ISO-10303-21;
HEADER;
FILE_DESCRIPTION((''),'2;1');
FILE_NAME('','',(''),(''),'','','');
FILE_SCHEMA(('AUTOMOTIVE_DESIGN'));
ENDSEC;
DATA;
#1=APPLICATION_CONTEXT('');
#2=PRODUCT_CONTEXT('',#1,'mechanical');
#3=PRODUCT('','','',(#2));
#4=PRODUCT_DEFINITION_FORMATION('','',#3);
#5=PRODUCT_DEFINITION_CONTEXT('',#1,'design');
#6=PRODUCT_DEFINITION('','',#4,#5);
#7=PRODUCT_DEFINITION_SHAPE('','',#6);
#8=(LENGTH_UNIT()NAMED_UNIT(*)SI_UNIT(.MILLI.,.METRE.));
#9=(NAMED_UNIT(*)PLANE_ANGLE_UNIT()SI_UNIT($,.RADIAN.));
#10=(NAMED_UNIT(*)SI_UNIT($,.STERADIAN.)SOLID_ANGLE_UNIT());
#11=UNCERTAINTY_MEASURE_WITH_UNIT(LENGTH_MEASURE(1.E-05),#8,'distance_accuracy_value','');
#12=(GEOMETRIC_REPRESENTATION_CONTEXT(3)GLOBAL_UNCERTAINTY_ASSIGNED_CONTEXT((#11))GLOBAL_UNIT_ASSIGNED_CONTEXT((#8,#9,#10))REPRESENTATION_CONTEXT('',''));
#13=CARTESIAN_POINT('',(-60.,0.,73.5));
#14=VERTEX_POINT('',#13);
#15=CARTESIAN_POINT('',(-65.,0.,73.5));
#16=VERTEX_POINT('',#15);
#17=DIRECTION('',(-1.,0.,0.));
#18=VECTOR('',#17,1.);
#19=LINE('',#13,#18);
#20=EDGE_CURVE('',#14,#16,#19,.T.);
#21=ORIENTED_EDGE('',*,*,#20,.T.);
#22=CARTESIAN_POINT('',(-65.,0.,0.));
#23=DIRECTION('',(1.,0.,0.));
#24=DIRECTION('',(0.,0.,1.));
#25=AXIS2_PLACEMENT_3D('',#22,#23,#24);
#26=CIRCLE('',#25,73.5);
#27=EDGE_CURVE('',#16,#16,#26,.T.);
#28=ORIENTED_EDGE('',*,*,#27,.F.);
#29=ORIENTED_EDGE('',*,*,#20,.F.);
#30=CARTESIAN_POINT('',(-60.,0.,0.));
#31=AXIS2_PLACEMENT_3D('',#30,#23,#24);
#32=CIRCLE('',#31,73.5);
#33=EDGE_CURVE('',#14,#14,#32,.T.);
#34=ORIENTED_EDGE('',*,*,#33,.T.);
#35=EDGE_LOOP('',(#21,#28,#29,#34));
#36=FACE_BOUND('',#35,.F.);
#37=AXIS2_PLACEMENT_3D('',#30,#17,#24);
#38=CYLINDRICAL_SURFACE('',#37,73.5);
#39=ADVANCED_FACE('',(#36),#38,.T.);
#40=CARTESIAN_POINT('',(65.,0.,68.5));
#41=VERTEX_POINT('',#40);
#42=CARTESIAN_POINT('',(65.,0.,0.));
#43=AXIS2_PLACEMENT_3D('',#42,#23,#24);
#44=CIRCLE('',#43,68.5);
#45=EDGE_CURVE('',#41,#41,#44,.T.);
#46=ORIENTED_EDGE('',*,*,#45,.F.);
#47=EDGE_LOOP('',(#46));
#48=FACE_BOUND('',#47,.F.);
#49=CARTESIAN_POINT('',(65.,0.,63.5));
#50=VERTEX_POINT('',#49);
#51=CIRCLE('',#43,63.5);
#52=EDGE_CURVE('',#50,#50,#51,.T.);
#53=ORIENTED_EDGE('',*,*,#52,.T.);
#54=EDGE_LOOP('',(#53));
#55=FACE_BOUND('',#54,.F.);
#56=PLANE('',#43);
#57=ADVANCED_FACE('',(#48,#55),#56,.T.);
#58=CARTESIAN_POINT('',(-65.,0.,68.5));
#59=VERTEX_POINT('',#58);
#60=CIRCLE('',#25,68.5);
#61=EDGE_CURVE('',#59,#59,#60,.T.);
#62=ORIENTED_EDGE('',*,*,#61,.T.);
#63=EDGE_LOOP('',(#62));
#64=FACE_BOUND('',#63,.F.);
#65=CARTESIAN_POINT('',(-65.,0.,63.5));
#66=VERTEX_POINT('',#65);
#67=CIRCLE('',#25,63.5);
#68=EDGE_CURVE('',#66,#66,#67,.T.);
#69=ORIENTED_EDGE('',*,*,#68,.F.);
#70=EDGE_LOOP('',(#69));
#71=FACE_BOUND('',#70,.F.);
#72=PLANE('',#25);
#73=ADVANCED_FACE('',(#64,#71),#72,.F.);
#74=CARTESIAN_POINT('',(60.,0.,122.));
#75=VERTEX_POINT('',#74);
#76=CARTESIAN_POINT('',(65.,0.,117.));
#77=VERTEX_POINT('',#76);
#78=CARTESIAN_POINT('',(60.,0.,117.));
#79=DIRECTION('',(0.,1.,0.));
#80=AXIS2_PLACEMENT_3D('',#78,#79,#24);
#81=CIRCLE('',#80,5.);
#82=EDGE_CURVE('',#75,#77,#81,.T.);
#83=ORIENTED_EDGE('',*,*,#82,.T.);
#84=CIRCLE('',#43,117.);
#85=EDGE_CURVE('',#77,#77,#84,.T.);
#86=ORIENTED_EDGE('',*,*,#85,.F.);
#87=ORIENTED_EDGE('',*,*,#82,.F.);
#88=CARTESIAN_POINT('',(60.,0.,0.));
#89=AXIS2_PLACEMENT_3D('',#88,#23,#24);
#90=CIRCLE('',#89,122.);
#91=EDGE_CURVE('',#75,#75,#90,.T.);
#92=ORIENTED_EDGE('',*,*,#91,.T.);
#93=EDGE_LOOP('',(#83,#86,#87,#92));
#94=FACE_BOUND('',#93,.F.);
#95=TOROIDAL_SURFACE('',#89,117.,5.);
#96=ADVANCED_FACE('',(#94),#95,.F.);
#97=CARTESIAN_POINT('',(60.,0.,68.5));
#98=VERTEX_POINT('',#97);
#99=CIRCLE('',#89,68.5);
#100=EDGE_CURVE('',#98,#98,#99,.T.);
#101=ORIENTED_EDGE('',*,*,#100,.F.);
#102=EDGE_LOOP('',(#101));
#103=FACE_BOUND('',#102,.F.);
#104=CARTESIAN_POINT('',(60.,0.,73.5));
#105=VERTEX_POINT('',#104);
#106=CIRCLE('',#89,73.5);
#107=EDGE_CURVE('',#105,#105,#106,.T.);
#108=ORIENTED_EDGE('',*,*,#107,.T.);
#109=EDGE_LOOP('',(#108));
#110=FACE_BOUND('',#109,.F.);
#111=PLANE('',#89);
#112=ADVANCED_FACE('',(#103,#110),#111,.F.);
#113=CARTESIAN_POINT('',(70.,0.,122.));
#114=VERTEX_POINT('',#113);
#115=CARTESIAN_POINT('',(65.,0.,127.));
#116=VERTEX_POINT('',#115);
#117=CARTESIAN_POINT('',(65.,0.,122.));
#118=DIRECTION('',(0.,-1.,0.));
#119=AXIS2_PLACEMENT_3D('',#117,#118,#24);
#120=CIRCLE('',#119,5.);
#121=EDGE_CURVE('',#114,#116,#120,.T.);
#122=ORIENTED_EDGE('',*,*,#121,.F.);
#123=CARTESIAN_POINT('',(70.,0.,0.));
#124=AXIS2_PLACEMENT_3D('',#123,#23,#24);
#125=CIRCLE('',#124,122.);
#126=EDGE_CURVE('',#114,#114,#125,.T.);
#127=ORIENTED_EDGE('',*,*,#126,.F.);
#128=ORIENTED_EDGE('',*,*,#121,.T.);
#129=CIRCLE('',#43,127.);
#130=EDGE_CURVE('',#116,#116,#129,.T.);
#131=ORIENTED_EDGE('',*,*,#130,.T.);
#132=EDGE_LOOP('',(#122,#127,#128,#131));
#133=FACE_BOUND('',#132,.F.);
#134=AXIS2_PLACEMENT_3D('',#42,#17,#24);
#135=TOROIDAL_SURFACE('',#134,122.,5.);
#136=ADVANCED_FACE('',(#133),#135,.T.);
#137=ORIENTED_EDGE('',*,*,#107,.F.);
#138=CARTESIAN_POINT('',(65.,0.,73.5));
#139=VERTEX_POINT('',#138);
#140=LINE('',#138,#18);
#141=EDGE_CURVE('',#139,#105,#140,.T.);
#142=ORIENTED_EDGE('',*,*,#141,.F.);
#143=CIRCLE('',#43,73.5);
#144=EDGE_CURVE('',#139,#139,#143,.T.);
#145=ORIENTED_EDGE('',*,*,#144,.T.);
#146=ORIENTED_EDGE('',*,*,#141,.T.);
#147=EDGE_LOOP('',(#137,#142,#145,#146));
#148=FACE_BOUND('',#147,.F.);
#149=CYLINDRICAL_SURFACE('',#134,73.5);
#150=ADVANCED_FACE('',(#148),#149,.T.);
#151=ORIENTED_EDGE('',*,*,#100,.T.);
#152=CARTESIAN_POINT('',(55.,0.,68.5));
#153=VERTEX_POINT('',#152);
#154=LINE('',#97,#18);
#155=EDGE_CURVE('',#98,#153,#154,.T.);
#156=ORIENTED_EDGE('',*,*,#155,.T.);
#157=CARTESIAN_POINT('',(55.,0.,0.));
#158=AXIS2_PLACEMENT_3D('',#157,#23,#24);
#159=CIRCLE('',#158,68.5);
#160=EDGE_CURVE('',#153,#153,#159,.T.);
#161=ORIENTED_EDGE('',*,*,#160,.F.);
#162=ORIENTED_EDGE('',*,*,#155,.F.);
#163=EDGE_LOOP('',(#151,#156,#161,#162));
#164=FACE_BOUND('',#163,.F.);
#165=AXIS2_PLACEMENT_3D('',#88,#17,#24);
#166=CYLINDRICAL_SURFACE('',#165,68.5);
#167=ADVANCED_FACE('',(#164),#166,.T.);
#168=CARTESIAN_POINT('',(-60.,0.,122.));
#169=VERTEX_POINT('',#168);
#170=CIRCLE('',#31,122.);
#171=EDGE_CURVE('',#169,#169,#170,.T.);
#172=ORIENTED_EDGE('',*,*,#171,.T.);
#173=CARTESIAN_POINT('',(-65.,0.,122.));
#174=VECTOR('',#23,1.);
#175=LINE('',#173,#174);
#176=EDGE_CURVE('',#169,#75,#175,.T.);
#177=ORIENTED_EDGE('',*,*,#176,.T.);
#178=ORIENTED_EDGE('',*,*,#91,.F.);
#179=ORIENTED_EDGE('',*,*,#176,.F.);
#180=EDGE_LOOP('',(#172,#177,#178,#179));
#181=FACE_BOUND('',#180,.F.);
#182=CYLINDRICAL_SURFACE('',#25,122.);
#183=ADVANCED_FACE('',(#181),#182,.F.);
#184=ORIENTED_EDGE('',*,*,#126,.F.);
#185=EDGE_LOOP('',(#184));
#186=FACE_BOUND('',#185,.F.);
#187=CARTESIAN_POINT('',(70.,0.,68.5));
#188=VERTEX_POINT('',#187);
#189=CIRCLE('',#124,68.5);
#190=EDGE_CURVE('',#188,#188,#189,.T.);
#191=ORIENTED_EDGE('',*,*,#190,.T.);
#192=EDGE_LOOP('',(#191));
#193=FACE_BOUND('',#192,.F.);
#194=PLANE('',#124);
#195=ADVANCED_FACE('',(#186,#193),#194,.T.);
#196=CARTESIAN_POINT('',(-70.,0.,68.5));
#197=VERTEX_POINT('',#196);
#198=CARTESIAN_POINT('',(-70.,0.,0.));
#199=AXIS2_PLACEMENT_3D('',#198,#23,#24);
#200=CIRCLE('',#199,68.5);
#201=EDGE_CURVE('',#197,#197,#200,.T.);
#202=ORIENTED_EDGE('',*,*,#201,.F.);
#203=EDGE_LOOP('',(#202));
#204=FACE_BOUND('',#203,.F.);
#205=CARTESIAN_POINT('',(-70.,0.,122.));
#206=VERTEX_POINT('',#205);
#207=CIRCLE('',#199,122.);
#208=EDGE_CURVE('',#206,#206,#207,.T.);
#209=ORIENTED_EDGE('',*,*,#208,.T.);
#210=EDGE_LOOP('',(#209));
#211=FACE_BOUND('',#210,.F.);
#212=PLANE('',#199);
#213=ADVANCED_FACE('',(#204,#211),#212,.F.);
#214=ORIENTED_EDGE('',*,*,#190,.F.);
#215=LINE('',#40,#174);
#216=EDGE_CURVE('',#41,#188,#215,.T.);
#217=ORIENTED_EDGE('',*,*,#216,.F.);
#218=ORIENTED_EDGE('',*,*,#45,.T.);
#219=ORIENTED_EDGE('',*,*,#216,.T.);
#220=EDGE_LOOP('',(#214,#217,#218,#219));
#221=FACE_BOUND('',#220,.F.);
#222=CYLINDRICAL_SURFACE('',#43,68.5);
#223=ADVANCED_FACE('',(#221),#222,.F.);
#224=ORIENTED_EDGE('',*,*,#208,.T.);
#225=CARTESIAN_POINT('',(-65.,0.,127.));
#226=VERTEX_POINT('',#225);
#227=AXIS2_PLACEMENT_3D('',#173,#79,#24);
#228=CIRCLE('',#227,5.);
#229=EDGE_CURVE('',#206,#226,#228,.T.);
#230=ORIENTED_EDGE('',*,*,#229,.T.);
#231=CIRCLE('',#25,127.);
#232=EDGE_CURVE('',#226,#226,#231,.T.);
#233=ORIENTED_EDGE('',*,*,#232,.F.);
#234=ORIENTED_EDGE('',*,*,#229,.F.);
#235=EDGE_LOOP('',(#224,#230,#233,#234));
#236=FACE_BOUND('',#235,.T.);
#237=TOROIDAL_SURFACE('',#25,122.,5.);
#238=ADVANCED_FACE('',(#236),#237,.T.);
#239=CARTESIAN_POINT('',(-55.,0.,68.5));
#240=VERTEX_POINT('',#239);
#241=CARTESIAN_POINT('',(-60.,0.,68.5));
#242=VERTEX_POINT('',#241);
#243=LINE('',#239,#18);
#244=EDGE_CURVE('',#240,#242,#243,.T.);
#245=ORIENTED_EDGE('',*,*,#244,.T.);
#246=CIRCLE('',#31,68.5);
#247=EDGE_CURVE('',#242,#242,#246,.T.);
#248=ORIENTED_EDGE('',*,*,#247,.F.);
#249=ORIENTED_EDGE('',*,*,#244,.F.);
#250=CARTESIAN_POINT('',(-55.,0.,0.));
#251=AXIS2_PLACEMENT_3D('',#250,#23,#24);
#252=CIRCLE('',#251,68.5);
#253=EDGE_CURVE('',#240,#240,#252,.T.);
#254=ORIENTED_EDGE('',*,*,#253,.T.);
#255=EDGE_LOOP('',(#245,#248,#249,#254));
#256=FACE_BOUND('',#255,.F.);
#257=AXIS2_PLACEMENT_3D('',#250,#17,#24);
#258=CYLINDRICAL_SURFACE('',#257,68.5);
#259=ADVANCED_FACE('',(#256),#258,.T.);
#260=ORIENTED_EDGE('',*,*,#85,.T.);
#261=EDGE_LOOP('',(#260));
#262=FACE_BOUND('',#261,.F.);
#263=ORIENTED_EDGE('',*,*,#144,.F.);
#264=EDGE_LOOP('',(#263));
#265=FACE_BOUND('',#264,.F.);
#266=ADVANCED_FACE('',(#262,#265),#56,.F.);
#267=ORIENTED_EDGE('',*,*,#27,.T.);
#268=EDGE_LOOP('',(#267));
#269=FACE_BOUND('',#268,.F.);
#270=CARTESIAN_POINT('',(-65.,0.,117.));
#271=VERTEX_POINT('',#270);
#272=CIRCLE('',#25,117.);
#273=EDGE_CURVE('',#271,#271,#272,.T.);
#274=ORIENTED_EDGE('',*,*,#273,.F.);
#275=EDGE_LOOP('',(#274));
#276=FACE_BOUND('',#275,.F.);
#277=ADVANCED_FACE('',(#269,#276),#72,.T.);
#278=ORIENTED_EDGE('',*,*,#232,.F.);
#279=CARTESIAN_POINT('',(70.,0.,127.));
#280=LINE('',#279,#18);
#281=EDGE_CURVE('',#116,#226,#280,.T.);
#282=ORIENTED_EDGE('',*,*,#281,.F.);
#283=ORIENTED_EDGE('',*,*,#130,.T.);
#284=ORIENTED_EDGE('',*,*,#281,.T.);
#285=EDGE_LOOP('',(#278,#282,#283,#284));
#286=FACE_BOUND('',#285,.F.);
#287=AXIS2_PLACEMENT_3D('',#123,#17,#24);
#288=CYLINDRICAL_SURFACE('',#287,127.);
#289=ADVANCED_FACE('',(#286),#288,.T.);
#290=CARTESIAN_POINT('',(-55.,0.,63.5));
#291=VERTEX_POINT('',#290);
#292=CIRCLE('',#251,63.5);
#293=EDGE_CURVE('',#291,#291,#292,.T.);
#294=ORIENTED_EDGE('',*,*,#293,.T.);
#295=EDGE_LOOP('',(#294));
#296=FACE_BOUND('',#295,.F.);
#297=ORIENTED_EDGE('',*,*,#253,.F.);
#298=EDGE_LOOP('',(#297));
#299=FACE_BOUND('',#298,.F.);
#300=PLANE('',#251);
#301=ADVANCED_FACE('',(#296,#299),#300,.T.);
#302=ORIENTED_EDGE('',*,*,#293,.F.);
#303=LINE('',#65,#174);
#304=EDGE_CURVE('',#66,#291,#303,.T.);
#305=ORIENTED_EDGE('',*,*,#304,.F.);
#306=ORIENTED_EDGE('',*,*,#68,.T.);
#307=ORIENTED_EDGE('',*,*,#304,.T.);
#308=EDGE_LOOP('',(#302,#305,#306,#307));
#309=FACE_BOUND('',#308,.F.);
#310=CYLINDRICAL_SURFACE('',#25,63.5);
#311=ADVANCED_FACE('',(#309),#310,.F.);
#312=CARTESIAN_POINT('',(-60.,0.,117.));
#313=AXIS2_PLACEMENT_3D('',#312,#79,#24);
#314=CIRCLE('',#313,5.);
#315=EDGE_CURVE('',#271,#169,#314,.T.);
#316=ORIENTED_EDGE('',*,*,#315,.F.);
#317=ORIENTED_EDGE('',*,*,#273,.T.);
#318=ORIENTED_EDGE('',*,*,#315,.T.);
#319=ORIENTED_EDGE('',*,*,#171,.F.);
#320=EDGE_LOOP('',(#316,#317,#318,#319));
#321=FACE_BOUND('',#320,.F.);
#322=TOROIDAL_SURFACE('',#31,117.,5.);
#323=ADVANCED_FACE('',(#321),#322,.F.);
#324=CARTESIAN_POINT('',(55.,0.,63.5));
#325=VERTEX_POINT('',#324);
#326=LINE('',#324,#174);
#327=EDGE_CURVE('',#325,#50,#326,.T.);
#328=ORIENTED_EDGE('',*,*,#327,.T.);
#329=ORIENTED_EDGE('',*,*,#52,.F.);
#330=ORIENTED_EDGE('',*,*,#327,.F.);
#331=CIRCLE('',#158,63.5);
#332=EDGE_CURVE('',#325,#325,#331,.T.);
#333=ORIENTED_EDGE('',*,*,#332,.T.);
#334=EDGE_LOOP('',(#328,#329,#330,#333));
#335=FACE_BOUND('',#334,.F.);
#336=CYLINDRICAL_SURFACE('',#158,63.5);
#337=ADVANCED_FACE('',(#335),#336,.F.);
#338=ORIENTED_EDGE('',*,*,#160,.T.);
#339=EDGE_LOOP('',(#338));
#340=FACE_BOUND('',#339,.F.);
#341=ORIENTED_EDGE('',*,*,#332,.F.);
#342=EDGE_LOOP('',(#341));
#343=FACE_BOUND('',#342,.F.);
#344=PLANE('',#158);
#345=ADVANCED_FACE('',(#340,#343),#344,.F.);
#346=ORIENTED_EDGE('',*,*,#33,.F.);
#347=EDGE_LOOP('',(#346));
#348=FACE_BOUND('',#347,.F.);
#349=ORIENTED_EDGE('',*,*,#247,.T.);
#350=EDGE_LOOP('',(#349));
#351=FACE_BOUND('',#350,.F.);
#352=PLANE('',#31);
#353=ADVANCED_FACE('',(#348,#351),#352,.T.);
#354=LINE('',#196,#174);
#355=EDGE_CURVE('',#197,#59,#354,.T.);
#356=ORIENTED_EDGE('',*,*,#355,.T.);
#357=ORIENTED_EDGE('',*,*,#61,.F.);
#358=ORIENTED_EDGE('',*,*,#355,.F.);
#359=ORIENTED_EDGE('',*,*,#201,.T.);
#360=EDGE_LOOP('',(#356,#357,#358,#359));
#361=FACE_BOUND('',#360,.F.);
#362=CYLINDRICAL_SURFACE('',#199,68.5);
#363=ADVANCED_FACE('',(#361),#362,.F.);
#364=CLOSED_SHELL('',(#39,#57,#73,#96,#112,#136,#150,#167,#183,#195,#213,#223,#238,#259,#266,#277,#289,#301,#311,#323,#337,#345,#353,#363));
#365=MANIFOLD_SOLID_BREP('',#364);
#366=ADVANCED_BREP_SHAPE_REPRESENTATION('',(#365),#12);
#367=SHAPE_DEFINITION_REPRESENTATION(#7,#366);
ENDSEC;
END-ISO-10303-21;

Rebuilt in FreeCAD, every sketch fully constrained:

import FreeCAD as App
import Part
import Sketcher

V = App.Vector


def edges_at(feature, points):
    """Names of the edges that pass closest to the given points."""
    edges = feature.Shape.Edges
    near = lambda p: min(range(len(edges)), key=lambda i: edges[i].distToShape(Part.Vertex(*p))[0])
    return sorted({f"Edge{near(p) + 1}" for p in points})


def add_polygon(sketch, points):
    """Adds a closed chain of lines whose ends are joined by coincident constraints."""
    first, n = sketch.GeometryCount, len(points)
    for a, b in zip(points, points[1:] + points[:1]):
        sketch.addGeometry(Part.LineSegment(App.Vector(*a, 0), App.Vector(*b, 0)), False)
    for i in range(n):
        sketch.addConstraint(Sketcher.Constraint("Coincident", first + i, 2, first + (i + 1) % n, 1))

doc = App.newDocument("Part")
params = doc.addObject("Spreadsheet::Sheet", "Params")
for row, (alias, value) in enumerate([
    ("sketch1_height", "58.5 mm"),
    ("sketch1_height2", "48.5 mm"),
    ("revolution_angle", "360 deg"),
    ("fillet_radius", "5 mm"),
], start=1):
    params.set(f"A{row}", alias)
    params.set(f"B{row}", "=" + value)
    params.setAlias(f"B{row}", alias)

body = doc.addObject("PartDesign::Body", "Body")

# Sketch on XZ plane
sketch1 = body.newObject("Sketcher::SketchObject", "Sketch")
sketch1.AttachmentSupport = (doc.getObject("XZ_Plane"), [""])
sketch1.MapMode = "FlatFace"
add_polygon(sketch1, [(70, 127), (-70, 127), (-70, 68), (-65, 68), (-65, 64), (-55, 64), (-55, 68), (-60, 68), (-60, 74), (-65, 74), (-65, 122), (65, 122), (65, 74), (60, 74), (60, 68), (55, 68), (55, 64), (65, 64), (65, 68), (70, 68)])  # lines 0-19
sketch1.addConstraint([
    Sketcher.Constraint("Horizontal", 0),
    Sketcher.Constraint("Vertical", 1),
    Sketcher.Constraint("Horizontal", 2),
    Sketcher.Constraint("Vertical", 3),
    Sketcher.Constraint("Horizontal", 4),
    Sketcher.Constraint("Vertical", 5),
    Sketcher.Constraint("Horizontal", 6),
    Sketcher.Constraint("Vertical", 7),
    Sketcher.Constraint("Horizontal", 8),
    Sketcher.Constraint("Vertical", 9),
    Sketcher.Constraint("Horizontal", 10),
    Sketcher.Constraint("Vertical", 11),
    Sketcher.Constraint("Horizontal", 12),
    Sketcher.Constraint("Vertical", 13),
    Sketcher.Constraint("Horizontal", 14),
    Sketcher.Constraint("Vertical", 15),
    Sketcher.Constraint("Horizontal", 16),
    Sketcher.Constraint("Vertical", 17),
    Sketcher.Constraint("Horizontal", 18),
    Sketcher.Constraint("Vertical", 19),
    Sketcher.Constraint("Symmetric", 8, 2, 11, 2, -2),
    Sketcher.Constraint("Symmetric", 6, 2, 13, 2, -2),
    Sketcher.Constraint("Symmetric", 4, 2, 15, 2, -2),
    Sketcher.Constraint("Symmetric", 2, 2, 17, 2, -2),
    Sketcher.Constraint("Horizontal", 2, 2, 5, 2),
    Sketcher.Constraint("Vertical", 3, 2, 8, 2),
    Sketcher.Constraint("Equal", 2, 6),
    Sketcher.Constraint("Equal", 6, 8),
    Sketcher.Constraint("Equal", 14, 18),
    Sketcher.Constraint("Equal", 18, 3),
    Sketcher.Constraint("Equal", 5, 7),
    Sketcher.Constraint("DistanceX", 2, 2, -1, 1, 65.0),
    Sketcher.Constraint("DistanceX", 4, 2, -1, 1, 55.0),
    Sketcher.Constraint("DistanceY", 1, 2, 1, 1, 58.5),
    Sketcher.Constraint("DistanceY", 9, 1, 9, 2, 48.5),
    Sketcher.Constraint("DistanceY", -1, 1, 0, 2, 127.0),
])
sketch1.setExpression("Constraints[53]", "Params.sketch1_height")
sketch1.setExpression("Constraints[54]", "Params.sketch1_height2")
revolution = body.newObject("PartDesign::Revolution", "Revolution")
revolution.Profile = sketch1
revolution.ReferenceAxis = (sketch1, ["H_Axis"])
revolution.setExpression("Angle", "Params.revolution_angle")
doc.recompute()

fillet = body.newObject("PartDesign::Fillet", "Fillet")
fillet.Base = (revolution, edges_at(revolution, [
    (-65, 0, -122),
    (-70, 0, -127),
    (65, 0, -122),
    (70, 0, -127),
]))
fillet.setExpression("Radius", "Params.fillet_radius")

doc.recompute()
